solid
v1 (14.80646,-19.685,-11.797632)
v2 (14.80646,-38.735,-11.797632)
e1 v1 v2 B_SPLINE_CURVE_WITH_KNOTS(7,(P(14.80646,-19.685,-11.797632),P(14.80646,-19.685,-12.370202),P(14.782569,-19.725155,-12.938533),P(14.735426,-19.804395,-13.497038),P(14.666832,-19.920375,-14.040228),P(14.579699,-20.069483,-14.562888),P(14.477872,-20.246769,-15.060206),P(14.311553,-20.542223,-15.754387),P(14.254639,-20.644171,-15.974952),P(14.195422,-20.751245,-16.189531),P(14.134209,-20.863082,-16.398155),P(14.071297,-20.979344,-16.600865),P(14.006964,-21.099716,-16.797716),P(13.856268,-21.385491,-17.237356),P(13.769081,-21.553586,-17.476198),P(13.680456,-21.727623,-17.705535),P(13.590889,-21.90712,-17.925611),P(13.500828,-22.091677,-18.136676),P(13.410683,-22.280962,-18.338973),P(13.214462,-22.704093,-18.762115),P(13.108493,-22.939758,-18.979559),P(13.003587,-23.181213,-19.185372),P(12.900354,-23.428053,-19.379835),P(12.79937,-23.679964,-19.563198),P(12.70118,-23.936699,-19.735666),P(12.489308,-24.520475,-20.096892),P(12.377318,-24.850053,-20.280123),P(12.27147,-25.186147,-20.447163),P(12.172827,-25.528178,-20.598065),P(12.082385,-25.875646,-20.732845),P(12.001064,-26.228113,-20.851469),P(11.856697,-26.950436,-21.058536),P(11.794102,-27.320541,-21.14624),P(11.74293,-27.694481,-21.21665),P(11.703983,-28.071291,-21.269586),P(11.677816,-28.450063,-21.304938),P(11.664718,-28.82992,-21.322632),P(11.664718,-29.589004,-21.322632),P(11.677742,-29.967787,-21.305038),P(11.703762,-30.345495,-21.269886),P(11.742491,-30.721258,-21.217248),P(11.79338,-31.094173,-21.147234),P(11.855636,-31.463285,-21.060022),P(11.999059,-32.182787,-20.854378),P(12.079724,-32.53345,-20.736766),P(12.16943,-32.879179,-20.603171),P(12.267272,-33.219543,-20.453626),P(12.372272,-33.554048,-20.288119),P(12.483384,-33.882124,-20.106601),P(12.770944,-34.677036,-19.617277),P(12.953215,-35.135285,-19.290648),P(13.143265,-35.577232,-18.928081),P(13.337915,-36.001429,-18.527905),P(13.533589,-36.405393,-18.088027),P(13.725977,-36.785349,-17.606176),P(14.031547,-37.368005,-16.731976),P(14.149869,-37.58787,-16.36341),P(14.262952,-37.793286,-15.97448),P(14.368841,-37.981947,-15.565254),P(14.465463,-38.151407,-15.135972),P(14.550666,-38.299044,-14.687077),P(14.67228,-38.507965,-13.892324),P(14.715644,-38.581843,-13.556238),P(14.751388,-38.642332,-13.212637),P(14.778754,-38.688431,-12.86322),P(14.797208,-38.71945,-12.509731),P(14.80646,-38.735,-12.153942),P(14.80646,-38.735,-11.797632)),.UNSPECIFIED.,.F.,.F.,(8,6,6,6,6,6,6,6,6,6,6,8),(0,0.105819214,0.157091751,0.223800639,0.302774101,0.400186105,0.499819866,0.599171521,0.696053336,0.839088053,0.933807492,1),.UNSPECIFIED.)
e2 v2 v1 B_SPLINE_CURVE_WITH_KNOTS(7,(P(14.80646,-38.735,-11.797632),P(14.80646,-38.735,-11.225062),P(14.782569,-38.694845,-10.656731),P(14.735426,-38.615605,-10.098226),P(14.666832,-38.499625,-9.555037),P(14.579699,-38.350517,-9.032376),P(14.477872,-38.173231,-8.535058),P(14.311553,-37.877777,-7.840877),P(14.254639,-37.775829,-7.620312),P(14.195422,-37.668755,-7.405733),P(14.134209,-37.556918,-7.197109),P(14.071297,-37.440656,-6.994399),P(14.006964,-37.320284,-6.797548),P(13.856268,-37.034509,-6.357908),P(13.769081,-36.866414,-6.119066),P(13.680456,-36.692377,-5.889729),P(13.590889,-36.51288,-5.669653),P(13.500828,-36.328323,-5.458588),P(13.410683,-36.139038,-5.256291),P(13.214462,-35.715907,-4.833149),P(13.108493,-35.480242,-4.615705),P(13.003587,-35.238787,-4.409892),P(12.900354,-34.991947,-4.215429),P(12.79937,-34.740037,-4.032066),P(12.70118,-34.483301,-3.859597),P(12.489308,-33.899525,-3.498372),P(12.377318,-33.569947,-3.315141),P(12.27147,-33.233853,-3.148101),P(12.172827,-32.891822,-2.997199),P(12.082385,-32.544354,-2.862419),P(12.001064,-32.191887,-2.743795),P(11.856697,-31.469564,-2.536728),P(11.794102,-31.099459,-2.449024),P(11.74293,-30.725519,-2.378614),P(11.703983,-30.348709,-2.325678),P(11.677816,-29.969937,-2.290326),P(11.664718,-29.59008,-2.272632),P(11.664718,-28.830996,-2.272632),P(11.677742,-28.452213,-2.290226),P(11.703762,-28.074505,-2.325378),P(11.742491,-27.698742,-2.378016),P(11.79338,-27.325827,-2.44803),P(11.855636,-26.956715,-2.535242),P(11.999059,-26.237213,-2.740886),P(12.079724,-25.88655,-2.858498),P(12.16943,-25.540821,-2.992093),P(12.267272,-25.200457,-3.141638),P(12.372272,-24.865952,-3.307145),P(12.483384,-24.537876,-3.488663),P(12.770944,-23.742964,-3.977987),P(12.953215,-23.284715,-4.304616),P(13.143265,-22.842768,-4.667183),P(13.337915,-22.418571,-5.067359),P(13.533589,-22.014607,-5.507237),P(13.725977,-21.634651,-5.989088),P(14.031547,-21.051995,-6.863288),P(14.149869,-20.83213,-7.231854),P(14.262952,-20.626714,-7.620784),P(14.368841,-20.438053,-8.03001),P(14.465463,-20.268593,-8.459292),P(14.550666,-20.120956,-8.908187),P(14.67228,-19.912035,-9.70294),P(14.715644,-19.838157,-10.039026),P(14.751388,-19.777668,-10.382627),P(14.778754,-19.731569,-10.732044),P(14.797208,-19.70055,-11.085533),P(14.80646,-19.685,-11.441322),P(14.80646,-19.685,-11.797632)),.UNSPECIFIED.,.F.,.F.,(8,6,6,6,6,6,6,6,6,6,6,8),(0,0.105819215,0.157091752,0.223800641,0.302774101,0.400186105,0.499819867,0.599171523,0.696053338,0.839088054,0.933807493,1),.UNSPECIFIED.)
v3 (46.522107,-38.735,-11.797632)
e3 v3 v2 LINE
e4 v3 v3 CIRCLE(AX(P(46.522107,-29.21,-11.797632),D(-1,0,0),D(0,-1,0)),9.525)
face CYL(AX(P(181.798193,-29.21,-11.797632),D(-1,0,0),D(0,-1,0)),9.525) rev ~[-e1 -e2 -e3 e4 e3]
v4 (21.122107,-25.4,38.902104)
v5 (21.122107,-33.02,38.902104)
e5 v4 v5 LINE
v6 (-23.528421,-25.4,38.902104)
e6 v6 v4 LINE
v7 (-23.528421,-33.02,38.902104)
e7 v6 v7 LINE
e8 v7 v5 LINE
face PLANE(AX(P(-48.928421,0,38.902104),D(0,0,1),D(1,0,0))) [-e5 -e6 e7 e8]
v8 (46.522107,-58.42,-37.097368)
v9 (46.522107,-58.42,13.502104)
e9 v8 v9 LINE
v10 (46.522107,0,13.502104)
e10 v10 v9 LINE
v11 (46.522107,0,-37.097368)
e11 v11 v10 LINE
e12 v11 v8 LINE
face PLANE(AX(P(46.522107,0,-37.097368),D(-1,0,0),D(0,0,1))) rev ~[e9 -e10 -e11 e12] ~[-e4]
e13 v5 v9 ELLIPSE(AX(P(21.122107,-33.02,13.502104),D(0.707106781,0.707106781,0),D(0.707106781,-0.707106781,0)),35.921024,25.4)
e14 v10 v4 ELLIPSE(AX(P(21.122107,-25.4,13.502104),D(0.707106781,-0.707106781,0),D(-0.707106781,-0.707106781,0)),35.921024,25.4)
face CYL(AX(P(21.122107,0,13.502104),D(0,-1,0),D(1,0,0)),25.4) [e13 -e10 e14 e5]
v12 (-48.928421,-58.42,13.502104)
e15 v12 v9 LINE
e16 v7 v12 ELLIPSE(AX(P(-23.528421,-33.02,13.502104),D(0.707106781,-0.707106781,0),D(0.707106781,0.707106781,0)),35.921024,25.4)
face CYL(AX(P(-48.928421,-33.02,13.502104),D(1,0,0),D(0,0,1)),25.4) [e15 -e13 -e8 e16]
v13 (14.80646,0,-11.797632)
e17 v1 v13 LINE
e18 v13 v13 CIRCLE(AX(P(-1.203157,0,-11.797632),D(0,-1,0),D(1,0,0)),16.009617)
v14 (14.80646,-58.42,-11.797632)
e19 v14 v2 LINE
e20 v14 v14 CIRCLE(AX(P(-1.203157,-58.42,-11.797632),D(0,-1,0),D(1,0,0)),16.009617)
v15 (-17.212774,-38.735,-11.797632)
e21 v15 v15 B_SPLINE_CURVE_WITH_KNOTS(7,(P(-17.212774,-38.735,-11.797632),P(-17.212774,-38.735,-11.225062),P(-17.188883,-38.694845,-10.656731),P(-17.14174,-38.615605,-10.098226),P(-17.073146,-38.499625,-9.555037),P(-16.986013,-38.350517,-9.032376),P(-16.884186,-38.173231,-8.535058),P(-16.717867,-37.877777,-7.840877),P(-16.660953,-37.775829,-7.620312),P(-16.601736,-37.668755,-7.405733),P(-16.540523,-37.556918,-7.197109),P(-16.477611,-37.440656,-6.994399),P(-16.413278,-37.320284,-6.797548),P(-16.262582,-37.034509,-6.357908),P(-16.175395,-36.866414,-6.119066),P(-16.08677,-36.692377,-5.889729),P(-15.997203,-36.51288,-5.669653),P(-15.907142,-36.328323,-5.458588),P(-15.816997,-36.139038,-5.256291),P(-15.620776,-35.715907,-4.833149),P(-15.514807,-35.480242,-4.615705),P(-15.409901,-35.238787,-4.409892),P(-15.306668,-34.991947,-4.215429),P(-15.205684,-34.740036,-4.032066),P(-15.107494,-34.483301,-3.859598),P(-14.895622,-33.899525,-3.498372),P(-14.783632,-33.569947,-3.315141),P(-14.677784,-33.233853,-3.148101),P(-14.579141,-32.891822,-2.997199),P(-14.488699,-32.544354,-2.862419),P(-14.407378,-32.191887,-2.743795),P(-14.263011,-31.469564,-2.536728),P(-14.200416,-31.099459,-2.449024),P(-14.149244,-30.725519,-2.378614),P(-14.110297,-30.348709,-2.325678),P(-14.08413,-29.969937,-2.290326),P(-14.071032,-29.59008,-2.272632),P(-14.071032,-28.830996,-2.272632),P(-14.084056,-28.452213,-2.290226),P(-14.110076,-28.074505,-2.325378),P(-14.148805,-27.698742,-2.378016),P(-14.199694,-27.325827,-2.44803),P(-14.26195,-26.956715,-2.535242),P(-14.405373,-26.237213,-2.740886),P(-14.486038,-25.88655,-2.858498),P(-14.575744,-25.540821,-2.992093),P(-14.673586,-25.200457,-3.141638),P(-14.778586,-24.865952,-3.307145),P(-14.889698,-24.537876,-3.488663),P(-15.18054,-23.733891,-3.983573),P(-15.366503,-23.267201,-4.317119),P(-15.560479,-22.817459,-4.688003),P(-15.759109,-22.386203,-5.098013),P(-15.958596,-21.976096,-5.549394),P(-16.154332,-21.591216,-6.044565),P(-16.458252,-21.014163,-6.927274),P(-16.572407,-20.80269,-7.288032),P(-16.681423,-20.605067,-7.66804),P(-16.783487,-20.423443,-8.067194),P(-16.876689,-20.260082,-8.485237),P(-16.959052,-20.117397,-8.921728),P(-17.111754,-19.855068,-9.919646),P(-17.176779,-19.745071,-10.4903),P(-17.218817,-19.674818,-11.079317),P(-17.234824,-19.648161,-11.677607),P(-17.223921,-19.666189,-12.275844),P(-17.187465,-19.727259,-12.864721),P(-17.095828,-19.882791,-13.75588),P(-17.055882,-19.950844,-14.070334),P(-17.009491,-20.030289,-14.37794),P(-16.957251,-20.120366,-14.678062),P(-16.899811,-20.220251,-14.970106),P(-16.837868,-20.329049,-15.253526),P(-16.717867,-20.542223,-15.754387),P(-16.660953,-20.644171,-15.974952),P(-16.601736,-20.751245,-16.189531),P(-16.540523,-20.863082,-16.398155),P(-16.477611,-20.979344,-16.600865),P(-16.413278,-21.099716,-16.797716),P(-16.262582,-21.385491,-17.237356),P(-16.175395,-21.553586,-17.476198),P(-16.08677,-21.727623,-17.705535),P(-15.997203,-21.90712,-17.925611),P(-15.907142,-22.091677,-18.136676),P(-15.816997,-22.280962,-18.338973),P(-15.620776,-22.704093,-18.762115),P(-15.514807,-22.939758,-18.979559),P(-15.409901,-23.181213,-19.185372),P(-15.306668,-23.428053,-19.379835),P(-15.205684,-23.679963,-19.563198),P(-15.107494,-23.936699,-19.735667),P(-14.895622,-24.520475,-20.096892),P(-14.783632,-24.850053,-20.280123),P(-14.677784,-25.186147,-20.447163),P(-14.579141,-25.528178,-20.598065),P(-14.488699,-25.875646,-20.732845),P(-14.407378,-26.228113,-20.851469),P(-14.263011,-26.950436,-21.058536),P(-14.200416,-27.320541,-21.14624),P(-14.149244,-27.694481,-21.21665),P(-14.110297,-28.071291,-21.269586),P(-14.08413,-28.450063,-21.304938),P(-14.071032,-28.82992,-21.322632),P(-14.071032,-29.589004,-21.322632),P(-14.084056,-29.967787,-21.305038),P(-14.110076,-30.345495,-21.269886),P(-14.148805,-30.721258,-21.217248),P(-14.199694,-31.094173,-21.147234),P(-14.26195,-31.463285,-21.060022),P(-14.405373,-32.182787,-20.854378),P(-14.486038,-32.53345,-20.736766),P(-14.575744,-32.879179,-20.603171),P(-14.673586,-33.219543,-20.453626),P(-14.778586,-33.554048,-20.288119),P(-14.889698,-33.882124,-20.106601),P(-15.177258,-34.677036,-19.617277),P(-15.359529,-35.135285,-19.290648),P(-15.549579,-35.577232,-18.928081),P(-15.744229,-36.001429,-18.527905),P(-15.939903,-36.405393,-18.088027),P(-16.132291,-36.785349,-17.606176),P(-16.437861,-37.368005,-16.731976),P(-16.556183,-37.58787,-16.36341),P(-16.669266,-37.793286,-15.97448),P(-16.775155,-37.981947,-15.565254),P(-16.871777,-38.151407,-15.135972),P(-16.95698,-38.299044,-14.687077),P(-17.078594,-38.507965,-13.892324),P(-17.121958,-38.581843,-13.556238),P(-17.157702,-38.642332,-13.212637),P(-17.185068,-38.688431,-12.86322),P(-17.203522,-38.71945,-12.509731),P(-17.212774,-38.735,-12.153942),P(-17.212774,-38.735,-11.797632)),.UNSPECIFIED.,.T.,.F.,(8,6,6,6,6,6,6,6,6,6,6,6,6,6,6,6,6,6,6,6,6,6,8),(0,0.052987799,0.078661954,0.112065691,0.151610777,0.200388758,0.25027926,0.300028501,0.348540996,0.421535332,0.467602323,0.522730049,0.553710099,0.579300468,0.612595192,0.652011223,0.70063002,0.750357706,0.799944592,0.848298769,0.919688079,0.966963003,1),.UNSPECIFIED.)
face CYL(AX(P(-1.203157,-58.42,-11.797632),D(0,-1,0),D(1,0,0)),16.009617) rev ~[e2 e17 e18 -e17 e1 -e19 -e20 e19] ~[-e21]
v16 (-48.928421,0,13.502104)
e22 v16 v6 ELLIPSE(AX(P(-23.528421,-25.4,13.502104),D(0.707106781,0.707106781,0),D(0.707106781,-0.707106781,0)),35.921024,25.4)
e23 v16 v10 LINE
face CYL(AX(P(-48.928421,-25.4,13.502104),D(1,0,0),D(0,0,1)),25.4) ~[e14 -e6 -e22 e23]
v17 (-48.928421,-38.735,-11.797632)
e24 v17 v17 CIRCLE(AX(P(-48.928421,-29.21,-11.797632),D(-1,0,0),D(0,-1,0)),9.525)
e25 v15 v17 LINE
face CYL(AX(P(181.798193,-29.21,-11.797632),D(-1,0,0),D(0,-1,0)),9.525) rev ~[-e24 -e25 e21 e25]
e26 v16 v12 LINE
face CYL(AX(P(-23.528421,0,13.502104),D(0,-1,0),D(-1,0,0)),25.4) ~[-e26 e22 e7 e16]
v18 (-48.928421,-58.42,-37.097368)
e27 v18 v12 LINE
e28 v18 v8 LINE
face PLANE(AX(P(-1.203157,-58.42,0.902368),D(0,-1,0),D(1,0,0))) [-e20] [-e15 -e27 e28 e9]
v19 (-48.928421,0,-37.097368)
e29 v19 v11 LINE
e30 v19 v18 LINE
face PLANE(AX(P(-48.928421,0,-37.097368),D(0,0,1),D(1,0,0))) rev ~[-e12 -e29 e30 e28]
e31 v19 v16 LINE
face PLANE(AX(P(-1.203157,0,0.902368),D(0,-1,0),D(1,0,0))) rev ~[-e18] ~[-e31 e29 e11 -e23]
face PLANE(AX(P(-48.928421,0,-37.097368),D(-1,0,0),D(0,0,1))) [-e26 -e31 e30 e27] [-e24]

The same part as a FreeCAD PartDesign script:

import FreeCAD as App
import Part
import Sketcher
Q = App.Units.Quantity


def edges_at(feature, points):
    """Names of the edges that pass closest to the given points."""
    edges = feature.Shape.Edges
    near = lambda p: min(range(len(edges)), key=lambda i: edges[i].distToShape(Part.Vertex(*p))[0])
    return sorted({f"Edge{near(p) + 1}" for p in points})

doc = App.newDocument("Part")
body = doc.addObject("PartDesign::Body", "Body")

# Sketch on XZ plane
sketch1 = body.newObject("Sketcher::SketchObject", "Sketch")
sketch1.AttachmentSupport = (doc.getObject("XZ_Plane"), [""])
sketch1.MapMode = "FlatFace"
sketch1.addGeometry([
    Part.LineSegment(App.Vector(-49, 39, 0), App.Vector(-49, -37, 0)),
    Part.LineSegment(App.Vector(-49, -37, 0), App.Vector(47, -37, 0)),
    Part.LineSegment(App.Vector(47, -37, 0), App.Vector(47, 39, 0)),
    Part.LineSegment(App.Vector(47, 39, 0), App.Vector(-49, 39, 0)),
], False)
sketch1.addConstraint([
    Sketcher.Constraint("Coincident", 0, 2, 1, 1),
    Sketcher.Constraint("Coincident", 1, 2, 2, 1),
    Sketcher.Constraint("Coincident", 2, 2, 3, 1),
    Sketcher.Constraint("Coincident", 3, 2, 0, 1),
    Sketcher.Constraint("Vertical", 0),
    Sketcher.Constraint("Horizontal", 1),
    Sketcher.Constraint("Vertical", 2),
    Sketcher.Constraint("Horizontal", 3),
    Sketcher.Constraint("DistanceY", 0, 2, 0, 1, Q("75.999472 mm")),
    Sketcher.Constraint("DistanceX", 1, 1, 1, 2, Q("95.450528 mm")),
    Sketcher.Constraint("DistanceX", 0, 2, -1, 1, Q("48.928421 mm")),
    Sketcher.Constraint("DistanceY", 0, 2, -1, 1, Q("37.097368 mm")),
])
pad1 = body.newObject("PartDesign::Pad", "Pad")
pad1.Profile = sketch1
pad1.Length = Q("2.3 in")
doc.recompute()

fillet = body.newObject("PartDesign::Fillet", "Fillet")
fillet.Base = (pad1, edges_at(pad1, [
    (-1.203, -58.42, 38.902),
    (46.522, -29.21, 38.902),
    (-48.928, -29.21, 38.902),
    (-1.203, 0, 38.902),
]))
fillet.Radius = Q("1 in")

# Sketch on XZ plane
sketch2 = body.newObject("Sketcher::SketchObject", "Sketch001")
sketch2.AttachmentSupport = (doc.getObject("XZ_Plane"), [""])
sketch2.MapMode = "FlatFace"
sketch2.AttachmentOffset = App.Placement(App.Vector(0, 0, 2.3 * 25.4), App.Rotation())
sketch2.addGeometry(Part.Circle(App.Vector(-1, -12, 0), App.Vector(0, 0, 1), 16), False)
sketch2.addConstraint([
    Sketcher.Constraint("Diameter", 0, Q("32.019234 mm")),
    Sketcher.Constraint("DistanceX", 0, 3, -1, 1, Q("1.203157 mm")),
    Sketcher.Constraint("DistanceY", 0, 3, -1, 1, Q("11.797632 mm")),
])
pocket1 = body.newObject("PartDesign::Pocket", "Pocket")
pocket1.Profile = sketch2
pocket1.Type = "ThroughAll"

# Sketch on YZ plane
sketch3 = body.newObject("Sketcher::SketchObject", "Sketch002")
sketch3.AttachmentSupport = (doc.getObject("YZ_Plane"), [""])
sketch3.MapMode = "FlatFace"
sketch3.AttachmentOffset = App.Placement(App.Vector(0, 0, 46.522107), App.Rotation())
sketch3.addGeometry(Part.Circle(App.Vector(-29, -12, 0), App.Vector(0, 0, 1), 10), False)
sketch3.addConstraint([
    Sketcher.Constraint("Diameter", 0, Q("0.75 in")),
    Sketcher.Constraint("DistanceX", 0, 3, -1, 1, Q("1.15 in")),
    Sketcher.Constraint("DistanceY", 0, 3, -1, 1, Q("11.797632 mm")),
])
doc.recompute()
hole = body.newObject("PartDesign::Hole", "Hole")
hole.Profile = sketch3
hole.ThreadType = "None"
hole.Diameter = Q("0.75 in")
hole.DepthType = "ThroughAll"

doc.recompute()
